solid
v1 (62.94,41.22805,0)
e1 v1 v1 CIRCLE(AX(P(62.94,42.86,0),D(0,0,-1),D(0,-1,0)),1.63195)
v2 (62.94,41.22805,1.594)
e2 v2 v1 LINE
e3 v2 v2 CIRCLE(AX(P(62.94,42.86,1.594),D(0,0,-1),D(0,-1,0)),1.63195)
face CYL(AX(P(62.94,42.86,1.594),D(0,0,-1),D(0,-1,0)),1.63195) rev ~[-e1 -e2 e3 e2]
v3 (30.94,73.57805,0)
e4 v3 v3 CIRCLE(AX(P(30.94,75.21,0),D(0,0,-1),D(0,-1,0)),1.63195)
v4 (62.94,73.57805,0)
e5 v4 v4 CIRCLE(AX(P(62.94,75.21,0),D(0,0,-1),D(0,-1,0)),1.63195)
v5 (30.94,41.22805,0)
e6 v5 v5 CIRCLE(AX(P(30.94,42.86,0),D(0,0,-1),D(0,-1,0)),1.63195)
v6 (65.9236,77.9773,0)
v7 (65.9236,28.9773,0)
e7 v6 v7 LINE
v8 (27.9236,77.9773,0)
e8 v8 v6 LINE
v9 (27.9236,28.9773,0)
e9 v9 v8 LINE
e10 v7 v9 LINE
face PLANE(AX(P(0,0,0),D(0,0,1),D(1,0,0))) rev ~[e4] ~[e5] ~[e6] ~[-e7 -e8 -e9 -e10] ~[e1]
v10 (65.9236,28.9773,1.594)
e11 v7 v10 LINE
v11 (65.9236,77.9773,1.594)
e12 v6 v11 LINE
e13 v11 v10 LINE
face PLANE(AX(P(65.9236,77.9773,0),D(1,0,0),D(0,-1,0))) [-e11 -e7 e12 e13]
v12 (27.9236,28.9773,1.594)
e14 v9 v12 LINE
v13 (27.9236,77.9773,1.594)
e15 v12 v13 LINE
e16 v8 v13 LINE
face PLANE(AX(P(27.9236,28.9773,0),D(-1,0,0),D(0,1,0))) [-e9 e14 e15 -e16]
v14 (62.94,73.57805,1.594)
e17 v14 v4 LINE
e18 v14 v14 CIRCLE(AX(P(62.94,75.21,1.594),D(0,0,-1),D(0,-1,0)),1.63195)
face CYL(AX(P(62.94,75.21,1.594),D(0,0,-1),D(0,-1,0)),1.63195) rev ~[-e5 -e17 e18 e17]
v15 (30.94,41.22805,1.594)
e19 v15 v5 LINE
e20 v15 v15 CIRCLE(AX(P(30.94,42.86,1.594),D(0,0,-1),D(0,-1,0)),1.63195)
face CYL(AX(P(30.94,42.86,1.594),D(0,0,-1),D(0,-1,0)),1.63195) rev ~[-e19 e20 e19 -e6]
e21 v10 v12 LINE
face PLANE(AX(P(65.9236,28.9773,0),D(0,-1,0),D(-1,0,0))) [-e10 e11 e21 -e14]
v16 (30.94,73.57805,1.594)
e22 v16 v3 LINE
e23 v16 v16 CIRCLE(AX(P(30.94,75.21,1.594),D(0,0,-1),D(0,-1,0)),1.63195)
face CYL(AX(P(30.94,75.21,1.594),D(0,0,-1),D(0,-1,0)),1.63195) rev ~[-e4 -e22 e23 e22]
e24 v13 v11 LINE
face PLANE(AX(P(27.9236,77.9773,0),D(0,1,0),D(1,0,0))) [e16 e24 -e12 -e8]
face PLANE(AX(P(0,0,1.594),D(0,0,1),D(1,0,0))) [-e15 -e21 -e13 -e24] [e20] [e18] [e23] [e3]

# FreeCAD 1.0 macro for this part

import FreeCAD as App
import Part
import Sketcher
from FreeCAD import Vector
Q = App.Units.Quantity


def add_polygon(sketch, points):
    """Adds a closed chain of lines whose ends are joined by coincident constraints."""
    first, n = sketch.GeometryCount, len(points)
    for a, b in zip(points, points[1:] + points[:1]):
        sketch.addGeometry(Part.LineSegment(App.Vector(*a, 0), App.Vector(*b, 0)), False)
    for i in range(n):
        sketch.addConstraint(Sketcher.Constraint("Coincident", first + i, 2, first + (i + 1) % n, 1))

doc = App.newDocument("Part")
body = doc.addObject("PartDesign::Body", "Body")

sketch1 = doc.addObject("Sketcher::SketchObject", "Sketch")
body.addObject(sketch1)
sketch1.AttachmentSupport = (doc.XY_Plane, [""])
sketch1.MapMode = "FlatFace"
add_polygon(sketch1, [(28, 78), (28, 29), (66, 29), (66, 78)])
sketch1.addConstraint(Sketcher.Constraint("Vertical", 0))
sketch1.addConstraint(Sketcher.Constraint("Horizontal", 1))
sketch1.addConstraint(Sketcher.Constraint("Vertical", 2))
sketch1.addConstraint(Sketcher.Constraint("Horizontal", 3))
sketch1.addConstraint(Sketcher.Constraint("DistanceX", 1, 1, 1, 2, Q("38 mm")))
sketch1.addConstraint(Sketcher.Constraint("DistanceY", 0, 2, 0, 1, Q("49 mm")))
sketch1.addConstraint(Sketcher.Constraint("DistanceX", -1, 1, 0, 2, Q("27.9236 mm")))
sketch1.addConstraint(Sketcher.Constraint("DistanceY", -1, 1, 0, 2, Q("28.9773 mm")))
pad1 = doc.addObject("PartDesign::Pad", "Pad")
body.addObject(pad1)
pad1.Profile = sketch1
pad1.Length = 1.594

sketch2 = doc.addObject("Sketcher::SketchObject", "Sketch001")
body.addObject(sketch2)
sketch2.AttachmentSupport = (doc.XY_Plane, [""])
sketch2.MapMode = "FlatFace"
sketch2.AttachmentOffset = App.Placement(Vector(0, 0, 1.594), App.Rotation())
sketch2.addGeometry(Part.Circle(Vector(62.9, 42.9, 0), Vector(0, 0, 1), 1.6), False)
sketch2.addConstraint(Sketcher.Constraint("Diameter", 0, Q("3.264 mm")))
sketch2.addConstraint(Sketcher.Constraint("DistanceX", -1, 1, 0, 3, Q("62.94 mm")))
sketch2.addConstraint(Sketcher.Constraint("DistanceY", -1, 1, 0, 3, Q("42.86 mm")))
doc.recompute()
hole = doc.addObject("PartDesign::Hole", "Hole")
body.addObject(hole)
hole.Profile = sketch2
hole.ThreadType = "None"
hole.Diameter = 3.2639
hole.DepthType = "ThroughAll"

sketch3 = doc.addObject("Sketcher::SketchObject", "Sketch002")
body.addObject(sketch3)
sketch3.AttachmentSupport = (doc.XY_Plane, [""])
sketch3.MapMode = "FlatFace"
sketch3.AttachmentOffset = App.Placement(Vector(0, 0, 1.594), App.Rotation())
sketch3.addGeometry(Part.Circle(Vector(30.9, 42.9, 0), Vector(0, 0, 1), 1.6), False)
sketch3.addConstraint(Sketcher.Constraint("Diameter", 0, Q("3.264 mm")))
sketch3.addConstraint(Sketcher.Constraint("DistanceX", -1, 1, 0, 3, Q("30.94 mm")))
sketch3.addConstraint(Sketcher.Constraint("DistanceY", -1, 1, 0, 3, Q("42.86 mm")))
doc.recompute()
hole2 = doc.addObject("PartDesign::Hole", "Hole001")
body.addObject(hole2)
hole2.Profile = sketch3
hole2.ThreadType = "None"
hole2.Diameter = 3.2639
hole2.DepthType = "ThroughAll"

sketch4 = doc.addObject("Sketcher::SketchObject", "Sketch003")
body.addObject(sketch4)
sketch4.AttachmentSupport = (doc.XY_Plane, [""])
sketch4.MapMode = "FlatFace"
sketch4.AttachmentOffset = App.Placement(Vector(0, 0, 1.594), App.Rotation())
sketch4.addGeometry(Part.Circle(Vector(62.9, 75.2, 0), Vector(0, 0, 1), 1.6), False)
sketch4.addConstraint(Sketcher.Constraint("Diameter", 0, Q("3.264 mm")))
sketch4.addConstraint(Sketcher.Constraint("DistanceX", -1, 1, 0, 3, Q("62.94 mm")))
sketch4.addConstraint(Sketcher.Constraint("DistanceY", -1, 1, 0, 3, Q("75.21 mm")))
doc.recompute()
hole3 = doc.addObject("PartDesign::Hole", "Hole002")
body.addObject(hole3)
hole3.Profile = sketch4
hole3.ThreadType = "None"
hole3.Diameter = 3.2639
hole3.DepthType = "ThroughAll"

sketch5 = doc.addObject("Sketcher::SketchObject", "Sketch004")
body.addObject(sketch5)
sketch5.AttachmentSupport = (doc.XY_Plane, [""])
sketch5.MapMode = "FlatFace"
sketch5.AttachmentOffset = App.Placement(Vector(0, 0, 1.594), App.Rotation())
sketch5.addGeometry(Part.Circle(Vector(30.9, 75.2, 0), Vector(0, 0, 1), 1.6), False)
sketch5.addConstraint(Sketcher.Constraint("Diameter", 0, Q("3.264 mm")))
sketch5.addConstraint(Sketcher.Constraint("DistanceX", -1, 1, 0, 3, Q("30.94 mm")))
sketch5.addConstraint(Sketcher.Constraint("DistanceY", -1, 1, 0, 3, Q("75.21 mm")))
doc.recompute()
hole4 = doc.addObject("PartDesign::Hole", "Hole003")
body.addObject(hole4)
hole4.Profile = sketch5
hole4.ThreadType = "None"
hole4.Diameter = 3.2639
hole4.DepthType = "ThroughAll"

doc.recompute()
